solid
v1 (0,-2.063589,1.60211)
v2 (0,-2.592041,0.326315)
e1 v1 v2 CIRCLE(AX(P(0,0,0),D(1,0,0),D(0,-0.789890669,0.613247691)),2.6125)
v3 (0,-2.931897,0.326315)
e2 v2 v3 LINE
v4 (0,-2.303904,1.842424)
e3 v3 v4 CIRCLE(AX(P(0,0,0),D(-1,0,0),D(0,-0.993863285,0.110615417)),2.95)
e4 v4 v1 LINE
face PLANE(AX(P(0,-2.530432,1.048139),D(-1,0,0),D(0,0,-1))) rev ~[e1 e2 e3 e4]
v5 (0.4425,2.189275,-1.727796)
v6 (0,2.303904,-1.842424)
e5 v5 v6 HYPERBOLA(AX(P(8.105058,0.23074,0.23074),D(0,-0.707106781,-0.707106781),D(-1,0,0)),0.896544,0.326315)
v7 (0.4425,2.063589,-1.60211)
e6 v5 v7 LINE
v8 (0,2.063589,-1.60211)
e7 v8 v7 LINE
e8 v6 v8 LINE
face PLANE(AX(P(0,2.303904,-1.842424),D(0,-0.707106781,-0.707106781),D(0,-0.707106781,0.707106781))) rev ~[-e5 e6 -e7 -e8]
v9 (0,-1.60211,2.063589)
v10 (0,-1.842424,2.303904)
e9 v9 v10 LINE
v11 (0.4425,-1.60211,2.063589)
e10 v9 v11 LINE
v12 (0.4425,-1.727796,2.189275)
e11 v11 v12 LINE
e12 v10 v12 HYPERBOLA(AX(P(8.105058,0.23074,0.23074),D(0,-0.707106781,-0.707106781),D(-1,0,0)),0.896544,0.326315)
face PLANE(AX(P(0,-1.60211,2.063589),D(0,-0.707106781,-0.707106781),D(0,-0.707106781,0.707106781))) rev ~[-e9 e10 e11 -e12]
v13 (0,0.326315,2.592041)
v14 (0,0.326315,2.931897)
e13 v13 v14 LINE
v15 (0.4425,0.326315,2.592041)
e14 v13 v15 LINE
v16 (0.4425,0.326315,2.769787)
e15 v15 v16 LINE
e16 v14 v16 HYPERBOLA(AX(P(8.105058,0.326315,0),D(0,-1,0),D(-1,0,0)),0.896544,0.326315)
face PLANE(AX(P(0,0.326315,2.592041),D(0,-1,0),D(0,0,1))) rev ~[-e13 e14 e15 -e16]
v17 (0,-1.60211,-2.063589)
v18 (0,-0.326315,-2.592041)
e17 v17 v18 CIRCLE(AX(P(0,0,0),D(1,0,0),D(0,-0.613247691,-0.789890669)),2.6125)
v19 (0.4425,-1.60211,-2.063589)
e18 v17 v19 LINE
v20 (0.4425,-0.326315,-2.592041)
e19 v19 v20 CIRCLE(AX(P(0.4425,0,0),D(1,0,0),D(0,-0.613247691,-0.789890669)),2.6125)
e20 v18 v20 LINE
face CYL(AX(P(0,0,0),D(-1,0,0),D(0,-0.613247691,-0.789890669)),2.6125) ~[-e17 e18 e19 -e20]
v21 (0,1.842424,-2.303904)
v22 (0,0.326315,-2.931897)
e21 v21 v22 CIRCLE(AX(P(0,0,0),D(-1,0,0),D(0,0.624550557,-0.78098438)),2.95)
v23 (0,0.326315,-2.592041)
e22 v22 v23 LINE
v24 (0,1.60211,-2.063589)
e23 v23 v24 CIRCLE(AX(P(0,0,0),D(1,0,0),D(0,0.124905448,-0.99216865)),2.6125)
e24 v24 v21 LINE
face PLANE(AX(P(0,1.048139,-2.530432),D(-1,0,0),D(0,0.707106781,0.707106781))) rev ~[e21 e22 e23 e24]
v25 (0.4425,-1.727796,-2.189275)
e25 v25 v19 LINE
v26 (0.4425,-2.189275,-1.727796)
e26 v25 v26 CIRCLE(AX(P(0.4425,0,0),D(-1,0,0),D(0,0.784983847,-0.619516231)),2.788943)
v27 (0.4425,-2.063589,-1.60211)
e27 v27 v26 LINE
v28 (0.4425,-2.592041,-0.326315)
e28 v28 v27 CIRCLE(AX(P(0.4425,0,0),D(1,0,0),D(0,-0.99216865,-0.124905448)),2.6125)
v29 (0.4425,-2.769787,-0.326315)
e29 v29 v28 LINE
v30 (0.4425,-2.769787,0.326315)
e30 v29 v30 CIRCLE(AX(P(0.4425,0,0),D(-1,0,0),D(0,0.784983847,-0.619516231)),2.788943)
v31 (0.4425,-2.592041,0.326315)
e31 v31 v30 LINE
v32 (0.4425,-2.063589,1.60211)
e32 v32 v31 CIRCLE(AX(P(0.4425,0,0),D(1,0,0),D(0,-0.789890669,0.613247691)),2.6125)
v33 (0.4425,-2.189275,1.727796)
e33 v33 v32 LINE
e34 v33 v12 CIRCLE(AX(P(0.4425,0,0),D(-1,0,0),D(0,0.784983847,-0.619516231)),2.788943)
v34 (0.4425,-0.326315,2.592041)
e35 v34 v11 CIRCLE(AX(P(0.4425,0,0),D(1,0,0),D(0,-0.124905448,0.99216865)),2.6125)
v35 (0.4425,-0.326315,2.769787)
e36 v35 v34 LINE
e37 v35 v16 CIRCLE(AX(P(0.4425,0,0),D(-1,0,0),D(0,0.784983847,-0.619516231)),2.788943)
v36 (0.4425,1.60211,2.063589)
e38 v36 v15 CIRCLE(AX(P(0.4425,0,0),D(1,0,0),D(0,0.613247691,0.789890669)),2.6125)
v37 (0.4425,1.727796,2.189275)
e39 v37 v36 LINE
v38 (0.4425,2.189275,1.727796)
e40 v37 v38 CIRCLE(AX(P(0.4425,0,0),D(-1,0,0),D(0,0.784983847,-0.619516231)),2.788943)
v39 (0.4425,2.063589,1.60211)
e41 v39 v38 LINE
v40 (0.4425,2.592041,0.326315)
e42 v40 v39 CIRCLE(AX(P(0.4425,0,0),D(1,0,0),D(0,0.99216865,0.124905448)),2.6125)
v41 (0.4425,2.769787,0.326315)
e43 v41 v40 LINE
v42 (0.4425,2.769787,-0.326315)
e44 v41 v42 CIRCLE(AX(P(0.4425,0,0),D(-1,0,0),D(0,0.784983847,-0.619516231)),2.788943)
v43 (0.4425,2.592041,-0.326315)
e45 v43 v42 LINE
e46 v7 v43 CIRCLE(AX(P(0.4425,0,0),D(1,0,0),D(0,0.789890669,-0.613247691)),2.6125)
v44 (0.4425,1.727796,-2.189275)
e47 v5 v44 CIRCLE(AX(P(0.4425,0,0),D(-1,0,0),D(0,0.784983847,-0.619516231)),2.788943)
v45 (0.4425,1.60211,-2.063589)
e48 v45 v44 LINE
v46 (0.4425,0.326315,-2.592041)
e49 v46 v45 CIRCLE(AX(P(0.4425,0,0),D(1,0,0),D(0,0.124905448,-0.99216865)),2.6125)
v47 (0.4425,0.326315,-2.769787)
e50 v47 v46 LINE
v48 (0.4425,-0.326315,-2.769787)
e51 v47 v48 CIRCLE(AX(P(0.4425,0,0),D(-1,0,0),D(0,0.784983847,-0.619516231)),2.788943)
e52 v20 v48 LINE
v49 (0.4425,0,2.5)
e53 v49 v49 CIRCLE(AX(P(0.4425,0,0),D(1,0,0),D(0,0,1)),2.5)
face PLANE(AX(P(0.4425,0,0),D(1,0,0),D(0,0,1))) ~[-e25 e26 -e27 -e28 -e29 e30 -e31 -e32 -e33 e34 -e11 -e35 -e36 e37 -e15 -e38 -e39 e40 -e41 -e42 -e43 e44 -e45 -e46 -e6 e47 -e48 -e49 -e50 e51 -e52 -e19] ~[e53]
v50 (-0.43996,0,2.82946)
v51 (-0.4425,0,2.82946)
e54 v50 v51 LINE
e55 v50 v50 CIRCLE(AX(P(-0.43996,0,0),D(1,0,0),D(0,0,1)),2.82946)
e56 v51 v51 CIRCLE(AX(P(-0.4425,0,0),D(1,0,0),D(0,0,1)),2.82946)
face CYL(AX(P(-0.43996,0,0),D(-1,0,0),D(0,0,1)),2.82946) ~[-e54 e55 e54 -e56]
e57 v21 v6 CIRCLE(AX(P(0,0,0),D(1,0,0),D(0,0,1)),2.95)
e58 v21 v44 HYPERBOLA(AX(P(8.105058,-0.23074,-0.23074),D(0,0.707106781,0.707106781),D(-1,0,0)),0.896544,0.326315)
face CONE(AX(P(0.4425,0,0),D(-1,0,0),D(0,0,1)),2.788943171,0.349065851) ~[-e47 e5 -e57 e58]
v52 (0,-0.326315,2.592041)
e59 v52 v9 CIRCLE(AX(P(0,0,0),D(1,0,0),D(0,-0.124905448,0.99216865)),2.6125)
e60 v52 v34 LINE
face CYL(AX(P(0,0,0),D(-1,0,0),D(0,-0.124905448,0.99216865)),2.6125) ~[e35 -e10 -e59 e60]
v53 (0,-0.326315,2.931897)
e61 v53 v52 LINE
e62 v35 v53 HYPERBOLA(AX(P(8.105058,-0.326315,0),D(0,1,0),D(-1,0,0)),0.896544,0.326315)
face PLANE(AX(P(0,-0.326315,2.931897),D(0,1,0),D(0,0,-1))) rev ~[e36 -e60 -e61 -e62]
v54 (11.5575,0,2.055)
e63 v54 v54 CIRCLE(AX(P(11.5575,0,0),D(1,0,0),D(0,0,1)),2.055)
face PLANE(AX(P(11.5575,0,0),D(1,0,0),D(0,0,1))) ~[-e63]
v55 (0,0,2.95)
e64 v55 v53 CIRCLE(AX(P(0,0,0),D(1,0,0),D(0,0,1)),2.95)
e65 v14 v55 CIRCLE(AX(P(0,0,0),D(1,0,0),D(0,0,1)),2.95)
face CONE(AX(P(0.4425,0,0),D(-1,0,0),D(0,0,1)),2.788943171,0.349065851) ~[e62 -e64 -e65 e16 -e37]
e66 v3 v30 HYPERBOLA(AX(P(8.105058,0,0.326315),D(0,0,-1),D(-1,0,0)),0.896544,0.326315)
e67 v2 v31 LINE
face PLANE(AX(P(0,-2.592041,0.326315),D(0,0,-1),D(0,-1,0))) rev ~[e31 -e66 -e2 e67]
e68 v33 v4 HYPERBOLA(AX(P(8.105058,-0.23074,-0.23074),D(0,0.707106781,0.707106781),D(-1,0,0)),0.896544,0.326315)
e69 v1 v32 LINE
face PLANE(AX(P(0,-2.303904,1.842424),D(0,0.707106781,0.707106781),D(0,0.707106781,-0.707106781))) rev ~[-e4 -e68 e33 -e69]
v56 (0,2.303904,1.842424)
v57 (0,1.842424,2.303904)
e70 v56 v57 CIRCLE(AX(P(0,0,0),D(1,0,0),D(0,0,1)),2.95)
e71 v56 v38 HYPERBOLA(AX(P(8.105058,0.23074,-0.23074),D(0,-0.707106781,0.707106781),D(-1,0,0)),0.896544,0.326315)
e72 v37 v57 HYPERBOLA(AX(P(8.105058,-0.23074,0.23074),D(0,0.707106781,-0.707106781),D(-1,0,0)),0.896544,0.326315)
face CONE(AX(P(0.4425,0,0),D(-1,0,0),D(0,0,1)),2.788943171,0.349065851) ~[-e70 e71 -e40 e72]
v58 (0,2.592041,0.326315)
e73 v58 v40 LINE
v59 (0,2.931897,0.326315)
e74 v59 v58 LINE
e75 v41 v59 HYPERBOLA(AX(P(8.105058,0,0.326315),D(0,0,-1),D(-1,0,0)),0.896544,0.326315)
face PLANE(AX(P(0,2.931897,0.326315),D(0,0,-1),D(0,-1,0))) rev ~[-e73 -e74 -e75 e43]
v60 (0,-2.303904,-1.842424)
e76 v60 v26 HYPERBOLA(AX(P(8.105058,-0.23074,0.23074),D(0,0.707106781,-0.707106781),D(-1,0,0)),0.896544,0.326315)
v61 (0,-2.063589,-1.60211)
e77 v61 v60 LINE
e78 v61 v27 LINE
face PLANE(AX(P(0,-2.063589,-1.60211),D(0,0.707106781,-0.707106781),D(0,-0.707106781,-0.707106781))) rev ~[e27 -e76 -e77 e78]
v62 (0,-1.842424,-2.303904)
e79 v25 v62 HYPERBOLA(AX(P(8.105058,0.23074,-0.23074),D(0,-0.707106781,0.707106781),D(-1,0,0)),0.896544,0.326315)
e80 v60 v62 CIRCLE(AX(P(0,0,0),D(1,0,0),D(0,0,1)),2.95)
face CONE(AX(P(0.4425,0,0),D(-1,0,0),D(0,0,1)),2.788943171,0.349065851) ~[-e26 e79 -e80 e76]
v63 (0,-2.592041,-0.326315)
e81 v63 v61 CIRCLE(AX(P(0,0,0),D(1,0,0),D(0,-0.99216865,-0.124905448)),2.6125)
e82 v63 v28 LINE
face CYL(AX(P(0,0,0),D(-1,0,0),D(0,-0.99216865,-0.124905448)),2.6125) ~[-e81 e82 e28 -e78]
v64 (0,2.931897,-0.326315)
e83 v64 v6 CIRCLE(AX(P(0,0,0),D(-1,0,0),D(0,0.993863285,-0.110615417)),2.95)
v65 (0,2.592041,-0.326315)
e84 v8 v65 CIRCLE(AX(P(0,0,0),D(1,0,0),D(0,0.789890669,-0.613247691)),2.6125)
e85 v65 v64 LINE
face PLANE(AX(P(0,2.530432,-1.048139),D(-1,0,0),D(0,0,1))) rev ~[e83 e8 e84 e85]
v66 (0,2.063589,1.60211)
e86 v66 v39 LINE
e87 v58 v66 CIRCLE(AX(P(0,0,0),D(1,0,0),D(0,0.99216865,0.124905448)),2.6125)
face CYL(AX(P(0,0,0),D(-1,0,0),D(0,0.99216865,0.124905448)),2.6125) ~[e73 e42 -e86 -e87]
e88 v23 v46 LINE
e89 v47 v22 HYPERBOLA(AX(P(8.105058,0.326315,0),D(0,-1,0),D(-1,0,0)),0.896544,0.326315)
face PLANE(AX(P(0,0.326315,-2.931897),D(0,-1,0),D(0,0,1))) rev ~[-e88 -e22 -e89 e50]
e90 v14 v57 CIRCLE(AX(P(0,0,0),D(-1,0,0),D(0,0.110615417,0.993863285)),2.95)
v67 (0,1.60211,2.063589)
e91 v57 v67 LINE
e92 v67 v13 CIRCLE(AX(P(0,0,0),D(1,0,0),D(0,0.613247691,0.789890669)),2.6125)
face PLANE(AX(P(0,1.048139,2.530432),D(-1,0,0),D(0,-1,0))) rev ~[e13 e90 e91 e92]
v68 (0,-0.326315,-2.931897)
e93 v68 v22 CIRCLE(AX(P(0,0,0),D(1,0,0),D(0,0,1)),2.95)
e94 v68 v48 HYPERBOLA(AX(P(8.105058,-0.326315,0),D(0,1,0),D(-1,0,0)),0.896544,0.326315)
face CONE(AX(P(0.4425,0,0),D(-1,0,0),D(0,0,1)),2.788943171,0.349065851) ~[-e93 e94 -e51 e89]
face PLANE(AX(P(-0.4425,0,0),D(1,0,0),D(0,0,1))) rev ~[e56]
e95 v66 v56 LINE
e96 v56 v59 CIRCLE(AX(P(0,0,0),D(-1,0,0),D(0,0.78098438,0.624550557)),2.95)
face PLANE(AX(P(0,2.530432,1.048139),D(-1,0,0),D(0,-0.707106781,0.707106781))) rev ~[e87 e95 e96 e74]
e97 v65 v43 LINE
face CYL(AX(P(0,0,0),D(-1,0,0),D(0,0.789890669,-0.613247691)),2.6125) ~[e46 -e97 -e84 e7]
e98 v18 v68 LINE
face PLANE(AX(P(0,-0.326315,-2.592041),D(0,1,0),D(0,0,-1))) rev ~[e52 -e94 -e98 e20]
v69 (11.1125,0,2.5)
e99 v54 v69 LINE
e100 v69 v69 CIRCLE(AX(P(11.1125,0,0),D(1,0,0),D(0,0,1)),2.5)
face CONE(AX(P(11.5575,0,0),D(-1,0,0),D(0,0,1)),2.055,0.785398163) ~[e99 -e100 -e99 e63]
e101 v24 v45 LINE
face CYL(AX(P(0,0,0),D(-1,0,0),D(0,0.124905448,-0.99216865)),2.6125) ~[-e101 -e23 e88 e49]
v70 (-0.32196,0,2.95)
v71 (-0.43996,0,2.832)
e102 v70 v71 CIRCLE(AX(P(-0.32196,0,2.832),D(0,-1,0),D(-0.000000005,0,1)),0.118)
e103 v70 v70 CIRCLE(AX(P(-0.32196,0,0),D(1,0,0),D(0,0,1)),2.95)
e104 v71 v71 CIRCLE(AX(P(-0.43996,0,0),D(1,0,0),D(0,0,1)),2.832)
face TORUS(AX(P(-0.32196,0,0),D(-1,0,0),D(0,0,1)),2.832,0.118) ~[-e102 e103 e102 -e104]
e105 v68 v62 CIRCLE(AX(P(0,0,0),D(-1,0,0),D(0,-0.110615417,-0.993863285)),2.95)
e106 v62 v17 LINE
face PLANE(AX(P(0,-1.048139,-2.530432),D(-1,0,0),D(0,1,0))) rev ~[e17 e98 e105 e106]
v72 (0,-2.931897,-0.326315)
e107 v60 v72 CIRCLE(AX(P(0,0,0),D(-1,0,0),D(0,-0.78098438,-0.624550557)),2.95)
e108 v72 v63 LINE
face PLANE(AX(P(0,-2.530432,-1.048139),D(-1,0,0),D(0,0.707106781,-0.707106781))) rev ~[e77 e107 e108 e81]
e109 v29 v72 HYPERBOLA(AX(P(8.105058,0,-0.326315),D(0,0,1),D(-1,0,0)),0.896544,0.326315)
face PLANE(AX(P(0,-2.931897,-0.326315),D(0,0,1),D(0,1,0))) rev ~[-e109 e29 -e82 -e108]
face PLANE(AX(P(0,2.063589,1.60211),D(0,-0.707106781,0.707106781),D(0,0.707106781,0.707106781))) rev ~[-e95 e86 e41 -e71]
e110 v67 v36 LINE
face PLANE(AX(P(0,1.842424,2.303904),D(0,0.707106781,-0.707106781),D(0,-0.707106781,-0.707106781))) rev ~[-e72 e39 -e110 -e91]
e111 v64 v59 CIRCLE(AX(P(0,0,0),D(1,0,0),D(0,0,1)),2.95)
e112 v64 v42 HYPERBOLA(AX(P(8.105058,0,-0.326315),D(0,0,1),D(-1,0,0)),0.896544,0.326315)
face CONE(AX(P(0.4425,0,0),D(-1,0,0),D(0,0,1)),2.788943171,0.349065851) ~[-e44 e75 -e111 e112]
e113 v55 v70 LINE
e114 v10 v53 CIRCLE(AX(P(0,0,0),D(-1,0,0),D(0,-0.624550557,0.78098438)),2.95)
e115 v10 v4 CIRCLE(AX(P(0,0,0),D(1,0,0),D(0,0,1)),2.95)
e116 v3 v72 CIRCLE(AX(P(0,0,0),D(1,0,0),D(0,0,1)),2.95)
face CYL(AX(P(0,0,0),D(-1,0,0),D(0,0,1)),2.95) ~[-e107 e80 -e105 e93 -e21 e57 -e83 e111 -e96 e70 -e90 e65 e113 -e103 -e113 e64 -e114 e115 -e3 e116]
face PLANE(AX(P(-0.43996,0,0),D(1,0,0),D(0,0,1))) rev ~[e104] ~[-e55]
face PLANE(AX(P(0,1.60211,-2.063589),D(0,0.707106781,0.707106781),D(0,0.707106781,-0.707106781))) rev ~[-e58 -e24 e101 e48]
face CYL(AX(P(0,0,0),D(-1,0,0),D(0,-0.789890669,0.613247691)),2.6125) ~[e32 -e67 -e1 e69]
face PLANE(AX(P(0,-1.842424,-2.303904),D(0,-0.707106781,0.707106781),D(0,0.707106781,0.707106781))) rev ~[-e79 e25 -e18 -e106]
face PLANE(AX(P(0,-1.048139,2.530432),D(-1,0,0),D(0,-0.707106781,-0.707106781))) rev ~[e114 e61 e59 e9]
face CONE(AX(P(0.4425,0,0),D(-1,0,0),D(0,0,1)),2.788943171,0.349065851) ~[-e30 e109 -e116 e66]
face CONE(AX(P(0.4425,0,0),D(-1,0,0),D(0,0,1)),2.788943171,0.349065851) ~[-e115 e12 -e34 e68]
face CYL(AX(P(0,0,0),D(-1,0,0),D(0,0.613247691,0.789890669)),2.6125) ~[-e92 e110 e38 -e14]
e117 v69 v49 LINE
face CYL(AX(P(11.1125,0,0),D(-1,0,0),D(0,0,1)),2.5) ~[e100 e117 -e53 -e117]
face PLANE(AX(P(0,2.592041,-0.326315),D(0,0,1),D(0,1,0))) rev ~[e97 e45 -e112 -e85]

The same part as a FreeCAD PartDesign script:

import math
import FreeCAD as App
import Part
import Sketcher
Q = App.Units.Quantity

doc = App.newDocument("Part")
params = doc.addObject("Spreadsheet::Sheet", "Params")
for row, (alias, value) in enumerate([
    ("sketch1_width", "12 mm"),
    ("sketch1_width2", "10.67 mm"),
    ("revolution_angle", "360 deg"),
    ("sketch2_radius", "2.95 mm"),
    ("pocket1_length", "0.4425 mm"),
], start=1):
    params.set(f"A{row}", alias)
    params.set(f"B{row}", "=" + value)
    params.setAlias(f"B{row}", alias)

body = doc.addObject("PartDesign::Body", "Body")

# Sketch on XY plane
sketch1 = body.newObject("Sketcher::SketchObject", "Sketch")
sketch1.AttachmentSupport = (doc.getObject("XY_Plane"), [""])
sketch1.MapMode = "FlatFace"
sketch1.addGeometry([
    Part.LineSegment(App.Vector(-0.4425, 2.8295, 0), App.Vector(-0.4425, 0, 0)),  # 0
    Part.LineSegment(App.Vector(-0.4425, 0, 0), App.Vector(11.5575, 0, 0)),  # 1
    Part.LineSegment(App.Vector(11.5575, 0, 0), App.Vector(11.5575, 2.055, 0)),  # 2
    Part.LineSegment(App.Vector(11.5575, 2.055, 0), App.Vector(11.1125, 2.5, 0)),  # 3
    Part.LineSegment(App.Vector(11.1125, 2.5, 0), App.Vector(0.4425, 2.5, 0)),  # 4
    Part.LineSegment(App.Vector(0.4425, 2.5, 0), App.Vector(0.4425, 2.7889, 0)),  # 5
    Part.LineSegment(App.Vector(0.4425, 2.7889, 0), App.Vector(0, 2.95, 0)),  # 6
    Part.LineSegment(App.Vector(0, 2.95, 0), App.Vector(-0.322, 2.95, 0)),  # 7
    Part.ArcOfCircle(Part.Circle(App.Vector(-0.322, 2.832, 0), App.Vector(0, 0, 1), 0.118), math.radians(90), math.radians(180)),  # 8
    Part.LineSegment(App.Vector(-0.44, 2.832, 0), App.Vector(-0.44, 2.8295, 0)),  # 9
    Part.LineSegment(App.Vector(-0.44, 2.8295, 0), App.Vector(-0.4425, 2.8295, 0)),  # 10
], False)
sketch1.addConstraint([
    Sketcher.Constraint("Coincident", 0, 2, 1, 1),
    Sketcher.Constraint("Coincident", 1, 2, 2, 1),
    Sketcher.Constraint("Coincident", 2, 2, 3, 1),
    Sketcher.Constraint("Coincident", 3, 2, 4, 1),
    Sketcher.Constraint("Coincident", 4, 2, 5, 1),
    Sketcher.Constraint("Coincident", 5, 2, 6, 1),
    Sketcher.Constraint("Coincident", 6, 2, 7, 1),
    Sketcher.Constraint("Tangent", 7, 2, 8, 1),
    Sketcher.Constraint("Tangent", 8, 2, 9, 1),
    Sketcher.Constraint("Coincident", 9, 2, 10, 1),
    Sketcher.Constraint("Coincident", 10, 2, 0, 1),
    Sketcher.Constraint("Vertical", 0),
    Sketcher.Constraint("Horizontal", 1),
    Sketcher.Constraint("Vertical", 2),
    Sketcher.Constraint("Horizontal", 4),
    Sketcher.Constraint("Vertical", 5),
    Sketcher.Constraint("Horizontal", 7),
    Sketcher.Constraint("Horizontal", 10),
    Sketcher.Constraint("PointOnObject", 0, 2, -1),
    Sketcher.Constraint("PointOnObject", 6, 2, -2),
    Sketcher.Constraint("Equal", 10, 9),
    Sketcher.Constraint("DistanceX", 1, 1, 1, 2, 12.0),
    Sketcher.Constraint("Angle", 3, Q("135 deg")),
    Sketcher.Constraint("Angle", 6, Q("160 deg")),
    Sketcher.Constraint("Radius", 8, 0.118),
    Sketcher.Constraint("DistanceX", 4, 2, 4, 1, 10.67),
    Sketcher.Constraint("DistanceY", -1, 1, 3, 2, 2.5),
    Sketcher.Constraint("DistanceY", 2, 1, 2, 2, 2.055),
    Sketcher.Constraint("DistanceY", -1, 1, 6, 2, 2.95),
    Sketcher.Constraint("DistanceY", -1, 1, 8, 2, 2.832),
    Sketcher.Constraint("Distance", 6, 0.470899),
    Sketcher.Constraint("DistanceX", 7, 2, 7, 1, 0.32196),
])
sketch1.setExpression("Constraints[21]", "Params.sketch1_width")
sketch1.setExpression("Constraints[25]", "Params.sketch1_width2")
revolution = body.newObject("PartDesign::Revolution", "Revolution")
revolution.Profile = sketch1
revolution.ReferenceAxis = (sketch1, ["H_Axis"])
revolution.setExpression("Angle", "Params.revolution_angle")

# Sketch on YZ plane
sketch2 = body.newObject("Sketcher::SketchObject", "Sketch001")
sketch2.AttachmentSupport = (doc.getObject("YZ_Plane"), [""])
sketch2.MapMode = "FlatFace"
sketch2.addGeometry([
    Part.LineSegment(App.Vector(2.93, -0.33, 0), App.Vector(2.59, -0.33, 0)),
    Part.ArcOfCircle(Part.Circle(App.Vector(0, 0, 0), App.Vector(0, 0, 1), 2.61), math.radians(-38), math.radians(-7)),
    Part.LineSegment(App.Vector(2.06, -1.6, 0), App.Vector(2.3, -1.84, 0)),
    Part.ArcOfCircle(Part.Circle(App.Vector(0, 0, 0), App.Vector(0, 0, 1), 2.95), math.radians(-39), math.radians(-6)),
], False)
sketch2.addConstraint([
    Sketcher.Constraint("Coincident", 0, 2, 1, 2),
    Sketcher.Constraint("Coincident", 1, 1, 2, 1),
    Sketcher.Constraint("Coincident", 2, 2, 3, 1),
    Sketcher.Constraint("Coincident", 3, 2, 0, 1),
    Sketcher.Constraint("Horizontal", 0),
    Sketcher.Constraint("Coincident", 1, 3, -1, 1),
    Sketcher.Constraint("Coincident", 3, 3, -1, 1),
    Sketcher.Constraint("Angle", 2, Q("-45 deg")),
    Sketcher.Constraint("Radius", 3, 2.95),
    Sketcher.Constraint("Radius", 1, 2.6125),
    Sketcher.Constraint("DistanceX", 0, 2, 0, 1, 0.339856),
    Sketcher.Constraint("DistanceX", -1, 1, 1, 1, 2.063589),
])
sketch2.setExpression("Constraints[8]", "Params.sketch2_radius")
pocket1 = body.newObject("PartDesign::Pocket", "Pocket")
pocket1.Profile = sketch2
pocket1.setExpression("Length", "Params.pocket1_length")
pocket1.Reversed = True
doc.recompute()

polarpattern = body.newObject("PartDesign::PolarPattern", "PolarPattern")
polarpattern.Originals = [pocket1]
polarpattern.Axis = (doc.getObject("X_Axis"), [""])
polarpattern.Angle = 360
polarpattern.Occurrences = 8
body.Tip = polarpattern

doc.recompute()
